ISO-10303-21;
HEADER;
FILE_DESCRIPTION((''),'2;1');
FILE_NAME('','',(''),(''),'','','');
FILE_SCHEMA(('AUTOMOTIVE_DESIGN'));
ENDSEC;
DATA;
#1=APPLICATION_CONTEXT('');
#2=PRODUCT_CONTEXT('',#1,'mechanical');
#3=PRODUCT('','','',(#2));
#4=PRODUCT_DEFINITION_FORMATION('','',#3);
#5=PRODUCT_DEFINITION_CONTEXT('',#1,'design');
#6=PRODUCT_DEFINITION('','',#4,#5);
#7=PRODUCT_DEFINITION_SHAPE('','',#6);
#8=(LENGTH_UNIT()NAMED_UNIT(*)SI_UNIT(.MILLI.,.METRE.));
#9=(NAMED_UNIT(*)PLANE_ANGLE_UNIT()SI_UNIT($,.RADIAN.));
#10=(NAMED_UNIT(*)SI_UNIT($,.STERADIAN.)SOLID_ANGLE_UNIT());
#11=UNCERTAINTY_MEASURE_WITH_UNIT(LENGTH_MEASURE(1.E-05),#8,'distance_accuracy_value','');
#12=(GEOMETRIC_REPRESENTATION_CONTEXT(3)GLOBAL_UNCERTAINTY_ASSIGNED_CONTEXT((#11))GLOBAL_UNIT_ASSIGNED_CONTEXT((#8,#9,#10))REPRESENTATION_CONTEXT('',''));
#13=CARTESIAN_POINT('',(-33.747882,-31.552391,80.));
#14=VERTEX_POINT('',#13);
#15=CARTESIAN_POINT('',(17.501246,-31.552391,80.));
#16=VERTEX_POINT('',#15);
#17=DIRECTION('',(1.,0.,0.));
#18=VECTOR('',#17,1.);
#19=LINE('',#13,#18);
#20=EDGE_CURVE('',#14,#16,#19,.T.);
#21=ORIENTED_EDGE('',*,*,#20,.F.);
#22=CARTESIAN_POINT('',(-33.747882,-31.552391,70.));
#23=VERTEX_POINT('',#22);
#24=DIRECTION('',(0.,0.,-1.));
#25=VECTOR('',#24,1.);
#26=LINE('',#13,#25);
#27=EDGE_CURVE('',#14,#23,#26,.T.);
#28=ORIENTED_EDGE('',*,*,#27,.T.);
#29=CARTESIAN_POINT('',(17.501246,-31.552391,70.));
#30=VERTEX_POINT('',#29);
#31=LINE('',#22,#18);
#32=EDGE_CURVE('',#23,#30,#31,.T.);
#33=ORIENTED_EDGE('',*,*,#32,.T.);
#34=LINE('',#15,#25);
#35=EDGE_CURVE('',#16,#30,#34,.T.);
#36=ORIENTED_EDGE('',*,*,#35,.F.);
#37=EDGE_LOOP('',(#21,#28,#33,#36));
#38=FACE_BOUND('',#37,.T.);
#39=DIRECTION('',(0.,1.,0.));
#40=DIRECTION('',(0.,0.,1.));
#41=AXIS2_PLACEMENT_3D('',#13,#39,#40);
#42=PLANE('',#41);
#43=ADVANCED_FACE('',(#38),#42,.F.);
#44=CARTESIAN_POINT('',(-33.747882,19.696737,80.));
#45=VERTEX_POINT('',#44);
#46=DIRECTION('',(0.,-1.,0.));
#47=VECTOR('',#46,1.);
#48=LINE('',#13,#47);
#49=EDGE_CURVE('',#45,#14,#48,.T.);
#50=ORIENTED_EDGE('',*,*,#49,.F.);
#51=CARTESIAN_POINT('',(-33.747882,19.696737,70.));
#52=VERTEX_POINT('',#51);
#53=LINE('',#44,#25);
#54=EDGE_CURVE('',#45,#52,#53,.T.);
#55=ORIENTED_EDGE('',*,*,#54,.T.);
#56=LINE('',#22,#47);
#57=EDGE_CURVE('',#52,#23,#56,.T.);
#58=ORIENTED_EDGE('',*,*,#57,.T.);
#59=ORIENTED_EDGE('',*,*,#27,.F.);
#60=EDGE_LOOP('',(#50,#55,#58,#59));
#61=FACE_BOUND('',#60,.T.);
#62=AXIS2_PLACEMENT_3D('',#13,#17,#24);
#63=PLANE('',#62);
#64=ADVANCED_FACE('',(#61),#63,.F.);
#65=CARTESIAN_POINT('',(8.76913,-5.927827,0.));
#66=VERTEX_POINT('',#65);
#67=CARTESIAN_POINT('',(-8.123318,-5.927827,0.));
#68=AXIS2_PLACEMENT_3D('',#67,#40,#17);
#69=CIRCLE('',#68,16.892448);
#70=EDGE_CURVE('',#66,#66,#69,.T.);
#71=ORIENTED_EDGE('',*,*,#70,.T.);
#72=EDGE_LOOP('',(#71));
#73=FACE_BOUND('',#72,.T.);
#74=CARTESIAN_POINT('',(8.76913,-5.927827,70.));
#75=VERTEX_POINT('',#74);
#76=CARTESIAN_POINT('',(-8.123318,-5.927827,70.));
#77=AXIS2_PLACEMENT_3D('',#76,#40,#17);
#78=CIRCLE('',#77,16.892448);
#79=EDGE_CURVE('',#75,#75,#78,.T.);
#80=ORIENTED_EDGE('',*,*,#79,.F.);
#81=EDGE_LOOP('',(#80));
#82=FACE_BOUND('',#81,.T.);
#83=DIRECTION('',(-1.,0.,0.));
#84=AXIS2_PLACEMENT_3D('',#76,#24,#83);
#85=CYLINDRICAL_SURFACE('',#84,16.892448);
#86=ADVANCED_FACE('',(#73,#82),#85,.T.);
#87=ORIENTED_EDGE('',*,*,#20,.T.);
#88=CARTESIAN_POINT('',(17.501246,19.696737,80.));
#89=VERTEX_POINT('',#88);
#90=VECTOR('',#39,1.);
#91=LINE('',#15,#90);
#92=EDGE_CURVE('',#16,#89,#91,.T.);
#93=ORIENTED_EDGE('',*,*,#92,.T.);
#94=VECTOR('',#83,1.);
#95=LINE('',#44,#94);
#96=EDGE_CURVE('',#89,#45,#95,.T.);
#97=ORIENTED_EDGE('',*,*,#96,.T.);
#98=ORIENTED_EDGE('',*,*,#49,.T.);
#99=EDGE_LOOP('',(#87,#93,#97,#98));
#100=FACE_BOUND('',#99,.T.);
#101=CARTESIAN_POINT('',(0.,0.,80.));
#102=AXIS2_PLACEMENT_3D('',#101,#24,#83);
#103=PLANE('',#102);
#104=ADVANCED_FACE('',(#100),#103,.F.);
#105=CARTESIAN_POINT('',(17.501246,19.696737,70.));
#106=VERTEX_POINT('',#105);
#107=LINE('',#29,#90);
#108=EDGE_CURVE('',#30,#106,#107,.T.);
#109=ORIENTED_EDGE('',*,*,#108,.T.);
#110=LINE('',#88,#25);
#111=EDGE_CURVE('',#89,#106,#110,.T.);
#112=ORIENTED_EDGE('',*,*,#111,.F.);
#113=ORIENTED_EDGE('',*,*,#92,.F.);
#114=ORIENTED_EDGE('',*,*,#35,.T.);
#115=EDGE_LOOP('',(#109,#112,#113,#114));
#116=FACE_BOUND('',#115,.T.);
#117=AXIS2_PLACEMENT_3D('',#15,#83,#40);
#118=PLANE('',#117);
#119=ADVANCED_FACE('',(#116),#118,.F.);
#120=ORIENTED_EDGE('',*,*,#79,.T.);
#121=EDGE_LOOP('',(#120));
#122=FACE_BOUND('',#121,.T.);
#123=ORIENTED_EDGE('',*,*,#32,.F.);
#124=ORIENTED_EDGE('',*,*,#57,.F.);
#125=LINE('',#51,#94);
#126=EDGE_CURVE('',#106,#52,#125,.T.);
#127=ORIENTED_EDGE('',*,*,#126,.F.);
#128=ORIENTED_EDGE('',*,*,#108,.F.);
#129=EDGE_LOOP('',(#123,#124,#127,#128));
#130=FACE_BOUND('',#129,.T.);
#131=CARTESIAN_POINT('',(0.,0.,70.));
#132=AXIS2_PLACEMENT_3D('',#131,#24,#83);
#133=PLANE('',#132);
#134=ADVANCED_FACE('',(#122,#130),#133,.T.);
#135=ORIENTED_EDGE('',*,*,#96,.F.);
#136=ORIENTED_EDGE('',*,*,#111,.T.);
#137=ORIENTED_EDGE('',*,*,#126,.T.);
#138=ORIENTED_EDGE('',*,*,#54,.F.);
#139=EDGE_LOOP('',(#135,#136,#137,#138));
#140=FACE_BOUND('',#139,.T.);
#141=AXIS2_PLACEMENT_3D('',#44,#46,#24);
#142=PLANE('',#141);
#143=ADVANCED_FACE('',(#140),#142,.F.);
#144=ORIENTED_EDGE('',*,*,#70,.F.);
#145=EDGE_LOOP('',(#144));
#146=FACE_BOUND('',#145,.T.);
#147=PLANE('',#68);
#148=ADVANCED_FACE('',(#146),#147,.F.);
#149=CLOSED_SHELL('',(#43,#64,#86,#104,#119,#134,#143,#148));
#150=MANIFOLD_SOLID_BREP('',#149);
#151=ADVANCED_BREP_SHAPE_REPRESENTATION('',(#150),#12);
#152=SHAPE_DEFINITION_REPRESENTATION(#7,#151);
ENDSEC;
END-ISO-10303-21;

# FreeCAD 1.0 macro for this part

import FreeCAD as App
import Part
import Sketcher
from FreeCAD import Vector
Q = App.Units.Quantity

doc = App.newDocument("Part")
params = doc.addObject("Spreadsheet::Sheet", "Params")
for row, (alias, value) in enumerate([
    ("pad1_length", "70 mm"),
    ("pad2_length", "10 mm"),
], start=1):
    params.set(f"A{row}", alias)
    params.set(f"B{row}", "=" + value)
    params.setAlias(f"B{row}", alias)

body = doc.addObject("PartDesign::Body", "Body")

# Sketch on XY plane
sketch1 = body.newObject("Sketcher::SketchObject", "Sketch")
sketch1.AttachmentSupport = (doc.getObject("XY_Plane"), [""])
sketch1.MapMode = "FlatFace"
sketch1.addGeometry(Part.Circle(Vector(-8, -6, 0), Vector(0, 0, 1), 17), False)
sketch1.addConstraint([
    Sketcher.Constraint("Diameter", 0, Q("33.784897 mm")),
    Sketcher.Constraint("DistanceX", 0, 3, -1, 1, Q("8.123318 mm")),
    Sketcher.Constraint("DistanceY", 0, 3, -1, 1, Q("5.927827 mm")),
])
pad1 = body.newObject("PartDesign::Pad", "Pad")
pad1.Profile = sketch1
pad1.setExpression("Length", "Params.pad1_length")

# Sketch on XY plane
sketch2 = body.newObject("Sketcher::SketchObject", "Sketch001")
sketch2.AttachmentSupport = (doc.getObject("XY_Plane"), [""])
sketch2.MapMode = "FlatFace"
sketch2.AttachmentOffset = App.Placement(Vector(0, 0, 70), App.Rotation())
sketch2.addGeometry([
    Part.LineSegment(Vector(-34, 20, 0), Vector(-34, -32, 0)),
    Part.LineSegment(Vector(-34, -32, 0), Vector(18, -32, 0)),
    Part.LineSegment(Vector(18, -32, 0), Vector(18, 20, 0)),
    Part.LineSegment(Vector(18, 20, 0), Vector(-34, 20, 0)),
], False)
sketch2.addConstraint([
    Sketcher.Constraint("Coincident", 0, 2, 1, 1),
    Sketcher.Constraint("Coincident", 1, 2, 2, 1),
    Sketcher.Constraint("Coincident", 2, 2, 3, 1),
    Sketcher.Constraint("Coincident", 3, 2, 0, 1),
    Sketcher.Constraint("Vertical", 0),
    Sketcher.Constraint("Horizontal", 1),
    Sketcher.Constraint("Vertical", 2),
    Sketcher.Constraint("Horizontal", 3),
    Sketcher.Constraint("Equal", 3, 0),
    Sketcher.Constraint("DistanceX", 1, 1, 1, 2, Q("51.249128 mm")),
    Sketcher.Constraint("DistanceY", 0, 2, -1, 1, Q("31.552391 mm")),
    Sketcher.Constraint("DistanceX", 0, 2, -1, 1, Q("33.747882 mm")),
])
pad2 = body.newObject("PartDesign::Pad", "Pad001")
pad2.Profile = sketch2
pad2.setExpression("Length", "Params.pad2_length")

doc.recompute()
